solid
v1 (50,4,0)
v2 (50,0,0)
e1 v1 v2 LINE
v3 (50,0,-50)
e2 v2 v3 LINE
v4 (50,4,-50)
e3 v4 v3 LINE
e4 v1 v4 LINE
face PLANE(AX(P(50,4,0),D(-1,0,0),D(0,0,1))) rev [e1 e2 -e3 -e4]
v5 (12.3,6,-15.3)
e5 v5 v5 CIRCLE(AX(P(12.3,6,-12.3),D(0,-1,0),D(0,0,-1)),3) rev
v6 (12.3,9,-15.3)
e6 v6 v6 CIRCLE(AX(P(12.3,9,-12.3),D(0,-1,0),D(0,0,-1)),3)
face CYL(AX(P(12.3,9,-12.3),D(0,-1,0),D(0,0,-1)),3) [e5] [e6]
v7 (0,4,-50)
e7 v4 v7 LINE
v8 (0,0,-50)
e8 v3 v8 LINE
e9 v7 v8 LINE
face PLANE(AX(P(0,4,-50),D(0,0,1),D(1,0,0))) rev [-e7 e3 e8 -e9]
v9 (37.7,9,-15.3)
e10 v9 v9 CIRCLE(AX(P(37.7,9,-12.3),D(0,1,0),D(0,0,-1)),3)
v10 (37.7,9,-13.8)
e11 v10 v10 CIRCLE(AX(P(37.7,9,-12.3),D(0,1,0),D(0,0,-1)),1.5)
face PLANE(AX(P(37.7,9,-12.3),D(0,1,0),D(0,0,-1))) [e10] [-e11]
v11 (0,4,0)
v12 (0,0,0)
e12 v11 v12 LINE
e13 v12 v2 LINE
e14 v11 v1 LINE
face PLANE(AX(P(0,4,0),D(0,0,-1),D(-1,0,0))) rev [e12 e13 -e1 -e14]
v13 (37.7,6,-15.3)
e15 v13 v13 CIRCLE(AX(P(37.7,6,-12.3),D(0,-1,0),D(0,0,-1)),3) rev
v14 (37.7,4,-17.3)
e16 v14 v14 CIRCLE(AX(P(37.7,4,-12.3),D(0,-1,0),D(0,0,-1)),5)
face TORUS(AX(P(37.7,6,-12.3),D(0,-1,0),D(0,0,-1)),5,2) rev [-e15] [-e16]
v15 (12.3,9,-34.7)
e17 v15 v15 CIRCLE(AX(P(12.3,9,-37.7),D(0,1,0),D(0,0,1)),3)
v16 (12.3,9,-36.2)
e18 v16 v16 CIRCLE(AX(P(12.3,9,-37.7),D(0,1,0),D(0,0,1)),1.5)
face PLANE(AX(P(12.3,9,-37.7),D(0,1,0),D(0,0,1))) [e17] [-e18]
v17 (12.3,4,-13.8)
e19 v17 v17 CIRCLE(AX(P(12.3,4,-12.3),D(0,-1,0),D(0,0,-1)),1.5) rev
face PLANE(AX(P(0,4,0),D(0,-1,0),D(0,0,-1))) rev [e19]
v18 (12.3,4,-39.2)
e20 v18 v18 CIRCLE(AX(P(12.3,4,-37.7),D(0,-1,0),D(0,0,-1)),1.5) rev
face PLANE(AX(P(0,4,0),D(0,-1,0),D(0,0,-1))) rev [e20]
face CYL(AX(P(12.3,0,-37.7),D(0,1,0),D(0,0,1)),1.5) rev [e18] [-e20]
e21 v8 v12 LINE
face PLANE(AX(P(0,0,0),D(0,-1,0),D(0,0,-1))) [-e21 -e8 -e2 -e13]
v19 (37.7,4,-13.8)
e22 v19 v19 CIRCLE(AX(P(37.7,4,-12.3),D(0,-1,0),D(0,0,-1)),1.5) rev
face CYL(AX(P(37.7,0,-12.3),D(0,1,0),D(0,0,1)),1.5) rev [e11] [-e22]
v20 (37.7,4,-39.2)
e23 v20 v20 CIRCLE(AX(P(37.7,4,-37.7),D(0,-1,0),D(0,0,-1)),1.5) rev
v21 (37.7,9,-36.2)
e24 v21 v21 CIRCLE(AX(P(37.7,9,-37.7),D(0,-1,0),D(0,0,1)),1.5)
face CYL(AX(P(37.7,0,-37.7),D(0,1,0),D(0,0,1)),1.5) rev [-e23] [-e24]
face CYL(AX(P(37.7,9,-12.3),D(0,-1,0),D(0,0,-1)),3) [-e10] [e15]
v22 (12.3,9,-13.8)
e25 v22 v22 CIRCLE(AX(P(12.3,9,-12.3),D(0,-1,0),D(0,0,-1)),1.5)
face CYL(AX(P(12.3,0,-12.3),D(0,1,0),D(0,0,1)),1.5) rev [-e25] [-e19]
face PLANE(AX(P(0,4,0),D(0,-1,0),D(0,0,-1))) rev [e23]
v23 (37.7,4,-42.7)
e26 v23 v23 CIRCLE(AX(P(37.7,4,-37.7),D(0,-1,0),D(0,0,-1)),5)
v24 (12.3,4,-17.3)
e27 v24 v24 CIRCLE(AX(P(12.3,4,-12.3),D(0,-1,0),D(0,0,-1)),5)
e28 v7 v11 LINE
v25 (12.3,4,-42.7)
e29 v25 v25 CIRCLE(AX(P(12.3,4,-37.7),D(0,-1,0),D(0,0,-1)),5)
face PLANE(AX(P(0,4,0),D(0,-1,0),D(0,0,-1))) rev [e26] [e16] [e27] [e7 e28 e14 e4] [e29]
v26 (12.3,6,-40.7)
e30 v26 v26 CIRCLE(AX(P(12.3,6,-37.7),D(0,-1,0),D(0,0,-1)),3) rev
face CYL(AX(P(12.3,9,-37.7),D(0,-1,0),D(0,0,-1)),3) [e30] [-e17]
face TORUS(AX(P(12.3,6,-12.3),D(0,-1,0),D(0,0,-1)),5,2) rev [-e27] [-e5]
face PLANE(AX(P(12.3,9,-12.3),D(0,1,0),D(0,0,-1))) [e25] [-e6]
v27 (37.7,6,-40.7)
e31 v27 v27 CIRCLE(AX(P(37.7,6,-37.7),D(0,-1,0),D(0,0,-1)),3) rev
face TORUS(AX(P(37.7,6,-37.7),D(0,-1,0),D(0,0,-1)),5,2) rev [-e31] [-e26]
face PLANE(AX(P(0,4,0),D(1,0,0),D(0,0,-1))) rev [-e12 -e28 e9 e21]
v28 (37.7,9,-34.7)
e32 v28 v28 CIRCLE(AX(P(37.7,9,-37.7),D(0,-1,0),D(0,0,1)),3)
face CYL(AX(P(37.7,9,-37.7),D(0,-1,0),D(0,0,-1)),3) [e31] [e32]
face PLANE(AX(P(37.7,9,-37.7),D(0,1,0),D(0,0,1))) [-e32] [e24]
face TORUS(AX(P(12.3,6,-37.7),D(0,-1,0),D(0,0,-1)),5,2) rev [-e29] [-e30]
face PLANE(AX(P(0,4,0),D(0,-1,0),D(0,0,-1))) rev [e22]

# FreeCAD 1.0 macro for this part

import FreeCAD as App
import Part
import Sketcher
Q = App.Units.Quantity


def edges_at(feature, points):
    """Names of the edges that pass closest to the given points."""
    edges = feature.Shape.Edges
    near = lambda p: min(range(len(edges)), key=lambda i: edges[i].distToShape(Part.Vertex(*p))[0])
    return sorted({f"Edge{near(p) + 1}" for p in points})

doc = App.newDocument("Part")
body = doc.addObject("PartDesign::Body", "Body")

# Sketch on XZ plane
sketch1 = doc.addObject("Sketcher::SketchObject", "Sketch")
body.addObject(sketch1)
sketch1.AttachmentSupport = (doc.XZ_Plane, [""])
sketch1.MapMode = "FlatFace"
sketch1.addGeometry(Part.LineSegment(App.Vector(0, -50, 0), App.Vector(0, 0, 0)), False)
sketch1.addGeometry(Part.LineSegment(App.Vector(0, 0, 0), App.Vector(50, 0, 0)), False)
sketch1.addGeometry(Part.LineSegment(App.Vector(50, 0, 0), App.Vector(50, -50, 0)), False)
sketch1.addGeometry(Part.LineSegment(App.Vector(50, -50, 0), App.Vector(0, -50, 0)), False)
sketch1.addConstraint(Sketcher.Constraint("Coincident", 0, 2, 1, 1))
sketch1.addConstraint(Sketcher.Constraint("Coincident", 1, 2, 2, 1))
sketch1.addConstraint(Sketcher.Constraint("Coincident", 2, 2, 3, 1))
sketch1.addConstraint(Sketcher.Constraint("Coincident", 3, 2, 0, 1))
sketch1.addConstraint(Sketcher.Constraint("Vertical", 0))
sketch1.addConstraint(Sketcher.Constraint("Horizontal", 1))
sketch1.addConstraint(Sketcher.Constraint("Vertical", 2))
sketch1.addConstraint(Sketcher.Constraint("Horizontal", 3))
sketch1.addConstraint(Sketcher.Constraint("Coincident", 0, 2, -1, 1))
sketch1.addConstraint(Sketcher.Constraint("Equal", 3, 0))
sketch1.addConstraint(Sketcher.Constraint("DistanceX", 1, 1, 1, 2, Q("50 mm")))
pad1 = doc.addObject("PartDesign::Pad", "Pad")
body.addObject(pad1)
pad1.Profile = sketch1
pad1.Length = 4
pad1.Reversed = True

# Sketch on XZ plane
sketch2 = doc.addObject("Sketcher::SketchObject", "Sketch001")
body.addObject(sketch2)
sketch2.AttachmentSupport = (doc.XZ_Plane, [""])
sketch2.MapMode = "FlatFace"
sketch2.AttachmentOffset = App.Placement(App.Vector(0, 0, -4), App.Rotation())
sketch2.addGeometry(Part.Circle(App.Vector(12.3, -37.7, 0), App.Vector(0, 0, 1), 1.5), False)
sketch2.addGeometry(Part.Circle(App.Vector(12.3, -12.3, 0), App.Vector(0, 0, 1), 1.5), False)
sketch2.addGeometry(Part.Circle(App.Vector(37.7, -37.7, 0), App.Vector(0, 0, 1), 1.5), False)
sketch2.addGeometry(Part.Circle(App.Vector(37.7, -12.3, 0), App.Vector(0, 0, 1), 1.5), False)
sketch2.addConstraint(Sketcher.Constraint("Equal", 0, 1))
sketch2.addConstraint(Sketcher.Constraint("Equal", 1, 2))
sketch2.addConstraint(Sketcher.Constraint("Equal", 2, 3))
sketch2.addConstraint(Sketcher.Constraint("Horizontal", 0, 3, 2, 3))
sketch2.addConstraint(Sketcher.Constraint("Horizontal", 1, 3, 3, 3))
sketch2.addConstraint(Sketcher.Constraint("Vertical", 0, 3, 1, 3))
sketch2.addConstraint(Sketcher.Constraint("Vertical", 2, 3, 3, 3))
sketch2.addConstraint(Sketcher.Constraint("Diameter", 0, Q("3 mm")))
sketch2.addConstraint(Sketcher.Constraint("DistanceX", -1, 1, 0, 3, Q("12.3 mm")))
sketch2.addConstraint(Sketcher.Constraint("DistanceY", 0, 3, -1, 1, Q("37.7 mm")))
sketch2.addConstraint(Sketcher.Constraint("DistanceY", 1, 3, -1, 1, Q("12.3 mm")))
sketch2.addConstraint(Sketcher.Constraint("DistanceX", -1, 1, 2, 3, Q("37.7 mm")))
pocket1 = doc.addObject("PartDesign::Pocket", "Pocket")
body.addObject(pocket1)
pocket1.Profile = sketch2
pocket1.Length = 4
pocket1.Reversed = True

# Sketch on XZ plane
sketch3 = doc.addObject("Sketcher::SketchObject", "Sketch002")
body.addObject(sketch3)
sketch3.AttachmentSupport = (doc.XZ_Plane, [""])
sketch3.MapMode = "FlatFace"
sketch3.AttachmentOffset = App.Placement(App.Vector(0, 0, -9), App.Rotation())
sketch3.addGeometry(Part.Circle(App.Vector(12.3, -37.7, 0), App.Vector(0, 0, 1), 3), False)
sketch3.addGeometry(Part.Circle(App.Vector(12.3, -37.7, 0), App.Vector(0, 0, 1), 1.5), False)
sketch3.addConstraint(Sketcher.Constraint("Coincident", 1, 3, 0, 3))
sketch3.addConstraint(Sketcher.Constraint("Diameter", 0, Q("6 mm")))
sketch3.addConstraint(Sketcher.Constraint("Diameter", 1, Q("3 mm")))
sketch3.addConstraint(Sketcher.Constraint("DistanceX", -1, 1, 0, 3, Q("12.3 mm")))
sketch3.addConstraint(Sketcher.Constraint("DistanceY", 0, 3, -1, 1, Q("37.7 mm")))
pad2 = doc.addObject("PartDesign::Pad", "Pad001")
body.addObject(pad2)
pad2.Profile = sketch3
pad2.Length = 5
doc.recompute()

datumplane = doc.addObject("PartDesign::Plane", "DatumPlane")
body.addObject(datumplane)
datumplane.AttachmentSupport = (doc.XY_Plane, [""])
datumplane.MapMode = "FlatFace"
datumplane.AttachmentOffset = App.Placement(App.Vector(0, 0, -25), App.Rotation())
mirrored = doc.addObject("PartDesign::Mirrored", "Mirrored")
body.addObject(mirrored)
mirrored.Originals = [pad2]
mirrored.MirrorPlane = (datumplane, [""])
body.Tip = mirrored
doc.recompute()

datumplane2 = doc.addObject("PartDesign::Plane", "DatumPlane001")
body.addObject(datumplane2)
datumplane2.AttachmentSupport = (doc.YZ_Plane, [""])
datumplane2.MapMode = "FlatFace"
datumplane2.AttachmentOffset = App.Placement(App.Vector(0, 0, 25), App.Rotation())
mirrored2 = doc.addObject("PartDesign::Mirrored", "Mirrored001")
body.addObject(mirrored2)
mirrored2.Originals = [pad2]
mirrored2.MirrorPlane = (datumplane2, [""])
body.Tip = mirrored2

# Sketch on XZ plane
sketch4 = doc.addObject("Sketcher::SketchObject", "Sketch003")
body.addObject(sketch4)
sketch4.AttachmentSupport = (doc.XZ_Plane, [""])
sketch4.MapMode = "FlatFace"
sketch4.AttachmentOffset = App.Placement(App.Vector(0, 0, -9), App.Rotation())
sketch4.addGeometry(Part.Circle(App.Vector(37.7, -12.3, 0), App.Vector(0, 0, 1), 3), False)
sketch4.addGeometry(Part.Circle(App.Vector(37.7, -12.3, 0), App.Vector(0, 0, 1), 1.5), False)
sketch4.addConstraint(Sketcher.Constraint("Coincident", 1, 3, 0, 3))
sketch4.addConstraint(Sketcher.Constraint("Diameter", 0, Q("6 mm")))
sketch4.addConstraint(Sketcher.Constraint("Diameter", 1, Q("3 mm")))
sketch4.addConstraint(Sketcher.Constraint("DistanceX", -1, 1, 0, 3, Q("37.7 mm")))
sketch4.addConstraint(Sketcher.Constraint("DistanceY", 0, 3, -1, 1, Q("12.3 mm")))
pad3 = doc.addObject("PartDesign::Pad", "Pad002")
body.addObject(pad3)
pad3.Profile = sketch4
pad3.Length = 5
doc.recompute()

fillet = doc.addObject("PartDesign::Fillet", "Fillet")
body.addObject(fillet)
fillet.Base = (pad3, edges_at(pad3, [
    (12.3, 4, -34.7),
    (12.3, 4, -15.3),
    (37.7, 4, -15.3),
    (37.7, 4, -34.7),
]))
fillet.Radius = 2

# Sketch on XZ plane
sketch5 = doc.addObject("Sketcher::SketchObject", "Sketch004")
body.addObject(sketch5)
sketch5.AttachmentSupport = (doc.XZ_Plane, [""])
sketch5.MapMode = "FlatFace"
sketch5.addGeometry(Part.LineSegment(App.Vector(0, 0, 0), App.Vector(0, -50, 0)), False)
sketch5.addGeometry(Part.LineSegment(App.Vector(0, -50, 0), App.Vector(50, -50, 0)), False)
sketch5.addGeometry(Part.LineSegment(App.Vector(50, -50, 0), App.Vector(50, 0, 0)), False)
sketch5.addGeometry(Part.LineSegment(App.Vector(50, 0, 0), App.Vector(0, 0, 0)), False)
sketch5.addConstraint(Sketcher.Constraint("Coincident", 0, 2, 1, 1))
sketch5.addConstraint(Sketcher.Constraint("Coincident", 1, 2, 2, 1))
sketch5.addConstraint(Sketcher.Constraint("Coincident", 2, 2, 3, 1))
sketch5.addConstraint(Sketcher.Constraint("Coincident", 3, 2, 0, 1))
sketch5.addConstraint(Sketcher.Constraint("Vertical", 0))
sketch5.addConstraint(Sketcher.Constraint("Horizontal", 1))
sketch5.addConstraint(Sketcher.Constraint("Vertical", 2))
sketch5.addConstraint(Sketcher.Constraint("Horizontal", 3))
sketch5.addConstraint(Sketcher.Constraint("Coincident", 3, 2, -1, 1))
sketch5.addConstraint(Sketcher.Constraint("Equal", 3, 0))
sketch5.addConstraint(Sketcher.Constraint("DistanceX", 1, 1, 1, 2, Q("50 mm")))
pad4 = doc.addObject("PartDesign::Pad", "Pad003")
body.addObject(pad4)
pad4.Profile = sketch5
pad4.Length = 4
pad4.Reversed = True

doc.recompute()
